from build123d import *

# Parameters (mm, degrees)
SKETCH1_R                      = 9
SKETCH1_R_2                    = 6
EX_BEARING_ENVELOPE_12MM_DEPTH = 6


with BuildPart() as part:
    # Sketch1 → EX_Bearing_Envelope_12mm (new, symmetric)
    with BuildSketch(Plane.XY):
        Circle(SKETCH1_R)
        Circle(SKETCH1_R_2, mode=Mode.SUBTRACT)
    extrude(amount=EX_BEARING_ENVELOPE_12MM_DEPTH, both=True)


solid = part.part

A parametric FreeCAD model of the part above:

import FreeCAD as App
import Part
import Sketcher
Q = App.Units.Quantity

doc = App.newDocument("Part")
body = doc.addObject("PartDesign::Body", "Body")

# Sketch on XY plane
sketch1 = body.newObject("Sketcher::SketchObject", "Sketch")
sketch1.AttachmentSupport = (doc.getObject("XY_Plane"), [""])
sketch1.MapMode = "FlatFace"
sketch1.addGeometry([
    Part.Circle(App.Vector(0, 0, 0), App.Vector(0, 0, 1), 9),
    Part.Circle(App.Vector(0, 0, 0), App.Vector(0, 0, 1), 6),
], False)
sketch1.addConstraint([
    Sketcher.Constraint("Coincident", 0, 3, -1, 1),
    Sketcher.Constraint("Coincident", 1, 3, -1, 1),
    Sketcher.Constraint("Diameter", 0, Q("18 mm")),
    Sketcher.Constraint("Diameter", 1, Q("12 mm")),
])
pad1 = body.newObject("PartDesign::Pad", "Pad")
pad1.Profile = sketch1
pad1.Length = 12
pad1.Midplane = True

doc.recompute()
